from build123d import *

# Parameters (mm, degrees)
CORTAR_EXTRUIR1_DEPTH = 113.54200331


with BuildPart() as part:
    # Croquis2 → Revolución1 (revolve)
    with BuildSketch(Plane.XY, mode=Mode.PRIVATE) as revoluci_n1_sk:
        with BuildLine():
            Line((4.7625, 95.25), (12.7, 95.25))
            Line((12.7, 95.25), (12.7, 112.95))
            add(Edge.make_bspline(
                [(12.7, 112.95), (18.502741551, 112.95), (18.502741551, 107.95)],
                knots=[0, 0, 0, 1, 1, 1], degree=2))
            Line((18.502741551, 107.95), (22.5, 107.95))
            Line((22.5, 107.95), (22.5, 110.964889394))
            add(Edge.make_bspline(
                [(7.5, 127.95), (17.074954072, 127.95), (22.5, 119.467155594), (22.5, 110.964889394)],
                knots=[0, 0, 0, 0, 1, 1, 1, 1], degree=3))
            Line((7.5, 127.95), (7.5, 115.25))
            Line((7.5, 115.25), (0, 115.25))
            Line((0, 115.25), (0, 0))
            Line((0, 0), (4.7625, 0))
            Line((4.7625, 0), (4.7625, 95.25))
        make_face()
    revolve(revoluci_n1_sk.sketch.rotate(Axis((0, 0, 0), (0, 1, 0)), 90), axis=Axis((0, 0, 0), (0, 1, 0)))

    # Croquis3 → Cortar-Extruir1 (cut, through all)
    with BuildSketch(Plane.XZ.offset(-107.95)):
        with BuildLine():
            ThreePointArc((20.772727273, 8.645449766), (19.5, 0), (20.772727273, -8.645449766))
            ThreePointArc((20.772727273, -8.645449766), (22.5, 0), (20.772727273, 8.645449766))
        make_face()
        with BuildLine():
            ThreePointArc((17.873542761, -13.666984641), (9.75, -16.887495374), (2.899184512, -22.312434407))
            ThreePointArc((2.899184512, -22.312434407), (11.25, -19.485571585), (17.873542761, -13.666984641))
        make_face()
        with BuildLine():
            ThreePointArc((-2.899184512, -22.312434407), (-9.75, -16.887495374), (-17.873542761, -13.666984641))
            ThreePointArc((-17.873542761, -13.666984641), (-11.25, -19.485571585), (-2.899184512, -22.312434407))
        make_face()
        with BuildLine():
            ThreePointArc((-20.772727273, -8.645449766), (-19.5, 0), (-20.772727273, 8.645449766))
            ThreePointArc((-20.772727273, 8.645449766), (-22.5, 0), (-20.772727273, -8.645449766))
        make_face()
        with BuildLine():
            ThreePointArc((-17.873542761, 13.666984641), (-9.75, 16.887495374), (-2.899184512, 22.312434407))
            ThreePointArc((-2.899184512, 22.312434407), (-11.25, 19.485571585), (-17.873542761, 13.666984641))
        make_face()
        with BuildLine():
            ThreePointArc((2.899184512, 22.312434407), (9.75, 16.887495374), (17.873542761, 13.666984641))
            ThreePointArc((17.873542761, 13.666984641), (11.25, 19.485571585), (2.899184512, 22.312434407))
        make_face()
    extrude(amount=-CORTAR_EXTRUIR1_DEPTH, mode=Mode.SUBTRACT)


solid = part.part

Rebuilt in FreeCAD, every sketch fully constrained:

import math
import FreeCAD as App
import Part
import Sketcher
from FreeCAD import Vector
Q = App.Units.Quantity

doc = App.newDocument("Part")
body = doc.addObject("PartDesign::Body", "Body")

# Sketch on XY plane
sketch1 = body.newObject("Sketcher::SketchObject", "Sketch")
sketch1.AttachmentSupport = (doc.getObject("XY_Plane"), [""])
sketch1.MapMode = "FlatFace"
sketch1.addGeometry([
    Part.LineSegment(Vector(4.7625, 95.25, 0), Vector(12.7, 95.25, 0)),  # 0
    Part.LineSegment(Vector(12.7, 95.25, 0), Vector(12.7, 112.95, 0)),  # 1
    Part.BSplineCurve([Vector(12.7, 112.95, 0), Vector(18.502742, 112.95, 0), Vector(18.502742, 107.95, 0)], [3, 3], [0, 1], False, 2, [1, 1, 1], False),  # 2
    Part.LineSegment(Vector(18.502742, 107.95, 0), Vector(22.5, 107.95, 0)),  # 3
    Part.LineSegment(Vector(22.5, 107.95, 0), Vector(22.5, 110.964889, 0)),  # 4
    Part.BSplineCurve([Vector(7.5, 127.95, 0), Vector(17.074954, 127.95, 0), Vector(22.5, 119.467156, 0), Vector(22.5, 110.964889, 0)], [4, 4], [0, 1], False, 3, [1, 1, 1, 1], False),  # 5
    Part.LineSegment(Vector(7.5, 127.95, 0), Vector(7.5, 115.25, 0)),  # 6
    Part.LineSegment(Vector(7.5, 115.25, 0), Vector(0, 115.25, 0)),  # 7
    Part.LineSegment(Vector(0, 115.25, 0), Vector(0, 0, 0)),  # 8
    Part.LineSegment(Vector(0, 0, 0), Vector(4.7625, 0, 0)),  # 9
    Part.LineSegment(Vector(4.7625, 0, 0), Vector(4.7625, 95.25, 0)),  # 10
], False)
sketch1.addConstraint([
    Sketcher.Constraint("Block", 2),
    Sketcher.Constraint("Block", 5),
    Sketcher.Constraint("Coincident", 0, 2, 1, 1),
    Sketcher.Constraint("Coincident", 1, 2, 2, 1),
    Sketcher.Constraint("Coincident", 2, 2, 3, 1),
    Sketcher.Constraint("Coincident", 3, 2, 4, 1),
    Sketcher.Constraint("Coincident", 4, 2, 5, 2),
    Sketcher.Constraint("Coincident", 5, 1, 6, 1),
    Sketcher.Constraint("Coincident", 6, 2, 7, 1),
    Sketcher.Constraint("Coincident", 7, 2, 8, 1),
    Sketcher.Constraint("Coincident", 8, 2, 9, 1),
    Sketcher.Constraint("Coincident", 9, 2, 10, 1),
    Sketcher.Constraint("Coincident", 10, 2, 0, 1),
    Sketcher.Constraint("Horizontal", 0),
    Sketcher.Constraint("Vertical", 1),
    Sketcher.Constraint("Horizontal", 3),
    Sketcher.Constraint("Vertical", 4),
    Sketcher.Constraint("Vertical", 6),
    Sketcher.Constraint("Horizontal", 7),
    Sketcher.Constraint("Vertical", 8),
    Sketcher.Constraint("Horizontal", 9),
    Sketcher.Constraint("Vertical", 10),
    Sketcher.Constraint("Coincident", 8, 2, -1, 1),
    Sketcher.Constraint("DistanceY", 1, 1, 1, 2, Q("17.7 mm")),
    Sketcher.Constraint("DistanceY", 6, 2, 6, 1, Q("12.7 mm")),
    Sketcher.Constraint("DistanceX", 0, 1, 0, 2, Q("7.9375 mm")),
])
revolution = body.newObject("PartDesign::Revolution", "Revolution")
revolution.Profile = sketch1
revolution.ReferenceAxis = (sketch1, ["V_Axis"])
revolution.Angle = 360

# Sketch on XZ plane
sketch2 = body.newObject("Sketcher::SketchObject", "Sketch001")
sketch2.AttachmentSupport = (doc.getObject("XZ_Plane"), [""])
sketch2.MapMode = "FlatFace"
sketch2.AttachmentOffset = App.Placement(Vector(0, 0, -107.95), App.Rotation())
sketch2.addGeometry([
    Part.ArcOfCircle(Part.Circle(Vector(49, 0, 0), Vector(0, 0, 1), 30), math.radians(163), math.radians(197)),  # 0
    Part.ArcOfCircle(Part.Circle(Vector(0, 0, 0), Vector(0, 0, 1), 23), math.radians(-23), math.radians(23)),  # 1
    Part.ArcOfCircle(Part.Circle(Vector(25, -43, 0), Vector(0, 0, 1), 30), math.radians(103), math.radians(137)),  # 2
    Part.ArcOfCircle(Part.Circle(Vector(0, 0, 0), Vector(0, 0, 1), 23), math.radians(-83), math.radians(-37)),  # 3
    Part.ArcOfCircle(Part.Circle(Vector(-25, -43, 0), Vector(0, 0, 1), 30), math.radians(43), math.radians(77)),  # 4
    Part.ArcOfCircle(Part.Circle(Vector(0, 0, 0), Vector(0, 0, 1), 23), math.radians(-143), math.radians(-97)),  # 5
    Part.ArcOfCircle(Part.Circle(Vector(-49, 0, 0), Vector(0, 0, 1), 30), math.radians(-17), math.radians(17)),  # 6
    Part.ArcOfCircle(Part.Circle(Vector(0, 0, 0), Vector(0, 0, 1), 23), math.radians(157), math.radians(203)),  # 7
    Part.ArcOfCircle(Part.Circle(Vector(-25, 43, 0), Vector(0, 0, 1), 30), math.radians(-77), math.radians(-43)),  # 8
    Part.ArcOfCircle(Part.Circle(Vector(0, 0, 0), Vector(0, 0, 1), 23), math.radians(97), math.radians(143)),  # 9
    Part.ArcOfCircle(Part.Circle(Vector(25, 43, 0), Vector(0, 0, 1), 30), math.radians(-137), math.radians(-103)),  # 10
    Part.ArcOfCircle(Part.Circle(Vector(0, 0, 0), Vector(0, 0, 1), 23), math.radians(37), math.radians(83)),  # 11
], False)
sketch2.addConstraint([
    Sketcher.Constraint("Coincident", 0, 1, 1, 2),
    Sketcher.Constraint("Coincident", 1, 1, 0, 2),
    Sketcher.Constraint("Coincident", 2, 1, 3, 2),
    Sketcher.Constraint("Coincident", 3, 1, 2, 2),
    Sketcher.Constraint("Coincident", 4, 1, 5, 2),
    Sketcher.Constraint("Coincident", 5, 1, 4, 2),
    Sketcher.Constraint("Coincident", 6, 1, 7, 2),
    Sketcher.Constraint("Coincident", 7, 1, 6, 2),
    Sketcher.Constraint("Coincident", 8, 1, 9, 2),
    Sketcher.Constraint("Coincident", 9, 1, 8, 2),
    Sketcher.Constraint("Coincident", 10, 1, 11, 2),
    Sketcher.Constraint("Coincident", 11, 1, 10, 2),
    Sketcher.Constraint("Coincident", 1, 3, -1, 1),
    Sketcher.Constraint("Coincident", 3, 3, -1, 1),
    Sketcher.Constraint("Coincident", 5, 3, -1, 1),
    Sketcher.Constraint("Coincident", 7, 3, -1, 1),
    Sketcher.Constraint("Coincident", 9, 3, -1, 1),
    Sketcher.Constraint("Coincident", 11, 3, -1, 1),
    Sketcher.Constraint("Equal", 0, 2),
    Sketcher.Constraint("Equal", 1, 3),
    Sketcher.Constraint("Equal", 2, 4),
    Sketcher.Constraint("Equal", 3, 5),
    Sketcher.Constraint("Equal", 4, 6),
    Sketcher.Constraint("Equal", 5, 7),
    Sketcher.Constraint("Equal", 6, 8),
    Sketcher.Constraint("Equal", 7, 9),
    Sketcher.Constraint("Equal", 8, 10),
    Sketcher.Constraint("Equal", 9, 11),
    Sketcher.Constraint("Symmetric", 0, 3, 6, 3, -1, 1),
    Sketcher.Constraint("Symmetric", 2, 3, 8, 3, -1, 1),
    Sketcher.Constraint("Symmetric", 4, 3, 10, 3, -1, 1),
    Sketcher.Constraint("Symmetric", 2, 3, 4, 3, -2),
    Sketcher.Constraint("PointOnObject", 0, 3, -1),
    Sketcher.Constraint("Radius", 0, Q("30 mm")),
    Sketcher.Constraint("Radius", 1, Q("22.5 mm")),
    Sketcher.Constraint("DistanceX", -1, 1, 0, 3, Q("49.5 mm")),
    Sketcher.Constraint("DistanceX", 4, 3, 2, 3, Q("49.5 mm")),
    Sketcher.Constraint("DistanceX", 3, 1, 2, 1, Q("14.974358 mm")),
])
pocket1 = body.newObject("PartDesign::Pocket", "Pocket")
pocket1.Profile = sketch2
pocket1.Type = "ThroughAll"

doc.recompute()
